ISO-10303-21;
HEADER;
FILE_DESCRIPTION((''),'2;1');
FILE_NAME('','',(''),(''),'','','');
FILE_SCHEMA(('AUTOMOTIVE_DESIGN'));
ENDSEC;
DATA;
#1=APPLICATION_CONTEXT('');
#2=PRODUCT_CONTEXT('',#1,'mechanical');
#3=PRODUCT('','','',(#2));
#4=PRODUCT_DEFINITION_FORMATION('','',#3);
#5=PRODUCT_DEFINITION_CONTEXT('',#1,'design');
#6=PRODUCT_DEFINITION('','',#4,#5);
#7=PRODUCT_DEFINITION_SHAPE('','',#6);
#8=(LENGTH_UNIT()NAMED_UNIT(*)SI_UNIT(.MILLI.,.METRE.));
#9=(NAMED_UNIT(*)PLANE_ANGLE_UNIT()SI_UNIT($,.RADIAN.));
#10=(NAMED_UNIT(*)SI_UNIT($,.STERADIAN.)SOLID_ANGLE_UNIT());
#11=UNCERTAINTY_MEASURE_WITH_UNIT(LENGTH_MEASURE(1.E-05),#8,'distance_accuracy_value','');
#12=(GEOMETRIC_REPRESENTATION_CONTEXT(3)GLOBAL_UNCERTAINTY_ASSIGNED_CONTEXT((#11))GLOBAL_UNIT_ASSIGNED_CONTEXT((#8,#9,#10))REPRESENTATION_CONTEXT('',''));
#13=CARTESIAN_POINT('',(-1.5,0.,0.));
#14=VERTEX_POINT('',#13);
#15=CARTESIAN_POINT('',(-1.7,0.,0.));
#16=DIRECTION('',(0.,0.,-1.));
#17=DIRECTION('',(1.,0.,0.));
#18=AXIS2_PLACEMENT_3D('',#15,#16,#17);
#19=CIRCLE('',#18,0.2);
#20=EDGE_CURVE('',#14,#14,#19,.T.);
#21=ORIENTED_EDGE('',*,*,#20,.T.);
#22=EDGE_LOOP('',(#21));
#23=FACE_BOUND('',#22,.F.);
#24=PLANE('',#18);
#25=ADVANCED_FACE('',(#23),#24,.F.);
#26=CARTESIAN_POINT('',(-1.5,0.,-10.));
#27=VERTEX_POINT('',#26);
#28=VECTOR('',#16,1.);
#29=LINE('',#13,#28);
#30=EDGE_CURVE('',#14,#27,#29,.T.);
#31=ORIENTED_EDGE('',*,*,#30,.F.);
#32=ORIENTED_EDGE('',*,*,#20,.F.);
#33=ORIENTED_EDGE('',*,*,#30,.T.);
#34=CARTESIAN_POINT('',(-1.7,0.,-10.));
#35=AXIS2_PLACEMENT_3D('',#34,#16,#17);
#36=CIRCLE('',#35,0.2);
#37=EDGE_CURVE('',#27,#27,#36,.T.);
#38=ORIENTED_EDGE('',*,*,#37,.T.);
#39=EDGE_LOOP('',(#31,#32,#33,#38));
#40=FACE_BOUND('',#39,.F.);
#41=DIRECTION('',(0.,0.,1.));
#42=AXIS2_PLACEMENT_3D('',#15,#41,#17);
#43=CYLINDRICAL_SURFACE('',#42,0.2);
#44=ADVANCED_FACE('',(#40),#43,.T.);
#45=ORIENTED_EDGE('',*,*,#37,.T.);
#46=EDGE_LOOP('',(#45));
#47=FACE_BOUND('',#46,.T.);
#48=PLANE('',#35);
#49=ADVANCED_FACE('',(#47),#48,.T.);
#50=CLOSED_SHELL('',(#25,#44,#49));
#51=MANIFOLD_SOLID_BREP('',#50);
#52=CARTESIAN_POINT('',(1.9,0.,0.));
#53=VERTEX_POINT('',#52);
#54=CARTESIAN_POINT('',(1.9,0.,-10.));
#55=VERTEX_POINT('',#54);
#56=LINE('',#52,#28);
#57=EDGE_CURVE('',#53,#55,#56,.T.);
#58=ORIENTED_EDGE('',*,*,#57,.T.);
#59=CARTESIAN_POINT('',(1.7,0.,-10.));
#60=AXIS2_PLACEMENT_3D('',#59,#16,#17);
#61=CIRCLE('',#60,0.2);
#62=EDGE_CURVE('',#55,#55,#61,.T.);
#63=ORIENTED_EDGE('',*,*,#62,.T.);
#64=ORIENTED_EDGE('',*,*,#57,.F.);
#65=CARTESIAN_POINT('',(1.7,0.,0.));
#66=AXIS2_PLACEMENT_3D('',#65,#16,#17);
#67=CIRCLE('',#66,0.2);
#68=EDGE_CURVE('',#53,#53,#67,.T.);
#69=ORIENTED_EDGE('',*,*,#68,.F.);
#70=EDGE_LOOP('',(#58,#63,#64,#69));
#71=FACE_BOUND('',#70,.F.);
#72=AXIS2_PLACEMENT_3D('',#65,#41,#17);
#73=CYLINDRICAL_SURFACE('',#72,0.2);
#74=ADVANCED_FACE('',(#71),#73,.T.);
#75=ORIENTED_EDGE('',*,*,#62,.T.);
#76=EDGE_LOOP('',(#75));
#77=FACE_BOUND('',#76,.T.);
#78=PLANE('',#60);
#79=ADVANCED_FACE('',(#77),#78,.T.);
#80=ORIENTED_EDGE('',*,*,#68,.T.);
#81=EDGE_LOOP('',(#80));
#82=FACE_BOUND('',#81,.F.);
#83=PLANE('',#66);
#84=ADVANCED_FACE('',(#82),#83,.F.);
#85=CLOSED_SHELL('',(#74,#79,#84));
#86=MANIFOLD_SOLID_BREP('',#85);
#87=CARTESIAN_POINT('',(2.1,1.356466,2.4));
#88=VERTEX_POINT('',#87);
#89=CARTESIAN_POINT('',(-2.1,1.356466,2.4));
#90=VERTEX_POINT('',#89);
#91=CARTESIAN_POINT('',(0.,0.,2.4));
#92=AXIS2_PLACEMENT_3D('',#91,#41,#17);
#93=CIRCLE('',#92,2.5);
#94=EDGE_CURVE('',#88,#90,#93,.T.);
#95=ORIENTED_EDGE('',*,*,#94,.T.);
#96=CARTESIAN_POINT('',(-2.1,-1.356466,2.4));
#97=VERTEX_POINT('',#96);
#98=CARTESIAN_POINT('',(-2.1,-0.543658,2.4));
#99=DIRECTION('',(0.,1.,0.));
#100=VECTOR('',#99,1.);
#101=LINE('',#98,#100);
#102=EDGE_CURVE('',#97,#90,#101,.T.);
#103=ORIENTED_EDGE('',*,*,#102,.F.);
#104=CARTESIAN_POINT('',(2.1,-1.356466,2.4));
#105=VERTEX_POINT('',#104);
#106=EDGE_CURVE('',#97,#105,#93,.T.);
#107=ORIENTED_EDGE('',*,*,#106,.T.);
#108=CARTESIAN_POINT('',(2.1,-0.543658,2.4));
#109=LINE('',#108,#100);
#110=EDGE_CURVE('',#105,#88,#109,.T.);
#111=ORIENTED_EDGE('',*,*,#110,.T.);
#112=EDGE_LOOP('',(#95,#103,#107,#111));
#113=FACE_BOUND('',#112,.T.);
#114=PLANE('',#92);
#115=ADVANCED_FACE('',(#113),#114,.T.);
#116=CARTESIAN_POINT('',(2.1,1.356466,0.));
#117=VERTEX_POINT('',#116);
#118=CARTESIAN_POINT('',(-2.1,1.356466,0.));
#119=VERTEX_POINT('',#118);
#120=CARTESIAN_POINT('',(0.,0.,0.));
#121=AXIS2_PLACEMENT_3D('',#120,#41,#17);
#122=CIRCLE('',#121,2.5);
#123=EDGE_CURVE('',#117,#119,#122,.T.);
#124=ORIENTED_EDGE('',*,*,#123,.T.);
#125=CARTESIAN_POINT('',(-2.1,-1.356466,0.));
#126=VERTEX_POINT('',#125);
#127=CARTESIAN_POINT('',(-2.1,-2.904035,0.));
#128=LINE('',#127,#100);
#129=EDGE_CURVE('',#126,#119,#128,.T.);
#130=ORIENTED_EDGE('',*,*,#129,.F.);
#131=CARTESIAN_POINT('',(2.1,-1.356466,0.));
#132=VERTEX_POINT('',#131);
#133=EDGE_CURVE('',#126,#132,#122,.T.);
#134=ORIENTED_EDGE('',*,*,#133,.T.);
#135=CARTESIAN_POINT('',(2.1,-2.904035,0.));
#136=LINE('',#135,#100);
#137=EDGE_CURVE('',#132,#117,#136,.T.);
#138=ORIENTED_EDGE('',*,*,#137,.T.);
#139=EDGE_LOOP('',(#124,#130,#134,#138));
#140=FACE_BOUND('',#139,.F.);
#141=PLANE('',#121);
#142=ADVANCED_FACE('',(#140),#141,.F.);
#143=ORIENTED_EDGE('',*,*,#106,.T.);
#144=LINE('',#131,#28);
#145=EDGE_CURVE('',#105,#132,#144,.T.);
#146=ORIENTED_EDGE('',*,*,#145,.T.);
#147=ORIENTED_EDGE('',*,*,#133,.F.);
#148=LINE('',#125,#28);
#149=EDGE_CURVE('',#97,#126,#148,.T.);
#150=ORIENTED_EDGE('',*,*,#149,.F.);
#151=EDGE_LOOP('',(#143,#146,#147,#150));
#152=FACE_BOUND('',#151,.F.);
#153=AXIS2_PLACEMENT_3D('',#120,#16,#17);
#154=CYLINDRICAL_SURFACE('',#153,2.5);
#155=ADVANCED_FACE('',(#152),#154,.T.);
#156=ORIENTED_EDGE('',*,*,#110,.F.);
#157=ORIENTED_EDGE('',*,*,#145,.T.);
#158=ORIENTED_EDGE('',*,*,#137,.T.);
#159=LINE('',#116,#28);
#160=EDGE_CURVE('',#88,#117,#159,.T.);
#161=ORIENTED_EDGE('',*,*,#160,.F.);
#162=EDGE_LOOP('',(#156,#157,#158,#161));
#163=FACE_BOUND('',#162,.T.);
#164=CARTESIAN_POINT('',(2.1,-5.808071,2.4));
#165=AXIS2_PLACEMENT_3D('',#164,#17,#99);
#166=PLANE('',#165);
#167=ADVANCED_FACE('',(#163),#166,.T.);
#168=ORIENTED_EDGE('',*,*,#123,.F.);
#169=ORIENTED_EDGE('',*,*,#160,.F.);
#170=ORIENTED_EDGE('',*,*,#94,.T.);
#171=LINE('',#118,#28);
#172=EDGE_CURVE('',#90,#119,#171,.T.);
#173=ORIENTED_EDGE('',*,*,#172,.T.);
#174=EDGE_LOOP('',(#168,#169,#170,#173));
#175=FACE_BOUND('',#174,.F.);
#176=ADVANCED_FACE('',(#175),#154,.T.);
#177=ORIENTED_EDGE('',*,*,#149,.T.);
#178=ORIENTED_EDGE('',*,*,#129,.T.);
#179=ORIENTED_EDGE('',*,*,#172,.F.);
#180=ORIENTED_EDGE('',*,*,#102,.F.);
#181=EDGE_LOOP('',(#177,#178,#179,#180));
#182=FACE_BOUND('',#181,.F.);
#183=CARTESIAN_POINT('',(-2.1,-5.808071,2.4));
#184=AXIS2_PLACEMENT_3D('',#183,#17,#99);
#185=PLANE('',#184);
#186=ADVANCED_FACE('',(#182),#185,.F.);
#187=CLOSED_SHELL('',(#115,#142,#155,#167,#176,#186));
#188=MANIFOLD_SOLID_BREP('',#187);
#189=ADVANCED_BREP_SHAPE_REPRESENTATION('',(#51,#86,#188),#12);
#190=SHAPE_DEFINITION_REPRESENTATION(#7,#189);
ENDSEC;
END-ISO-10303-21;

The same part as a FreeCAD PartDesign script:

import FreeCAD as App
import Part
import Sketcher

V = App.Vector

doc = App.newDocument("Part")
body = doc.addObject("PartDesign::Body", "Body")

sketch1 = body.newObject("Sketcher::SketchObject", "Sketch")
sketch1.AttachmentSupport = (doc.getObject("XY_Plane"), [""])
sketch1.MapMode = "FlatFace"
sketch1.addGeometry(Part.Circle(V(0, 0, 0), V(0, 0, 1), 2.5), False)
sketch1.addConstraint(Sketcher.Constraint("Coincident", 0, 3, -1, 1))
sketch1.addConstraint(Sketcher.Constraint("Diameter", 0, 5.0))
pad1 = body.newObject("PartDesign::Pad", "Pad")
pad1.Profile = sketch1
pad1.Length = 2.4
body2 = doc.addObject("PartDesign::Body", "Body001")
body2.AllowCompound = True

sketch2 = body2.newObject("Sketcher::SketchObject", "Sketch001")
sketch2.AttachmentSupport = (doc.getObject("XY_Plane001"), [""])
sketch2.MapMode = "FlatFace"
sketch2.addGeometry(Part.Circle(V(-1.7, 0, 0), V(0, 0, 1), 0.2), False)
sketch2.addGeometry(Part.Circle(V(1.7, 0, 0), V(0, 0, 1), 0.2), False)
sketch2.addConstraint(Sketcher.Constraint("Equal", 0, 1))
sketch2.addConstraint(Sketcher.Constraint("Symmetric", 0, 3, 1, 3, -1, 1))
sketch2.addConstraint(Sketcher.Constraint("PointOnObject", 0, 3, -1))
sketch2.addConstraint(Sketcher.Constraint("Diameter", 0, 0.4))
sketch2.addConstraint(Sketcher.Constraint("DistanceX", 0, 3, -1, 1, 1.7))
pad2 = body2.newObject("PartDesign::Pad", "Pad001")
pad2.Profile = sketch2
pad2.Length = 10
pad2.Reversed = True
body3 = doc.addObject("PartDesign::Body", "Body002")

sketch3 = body3.newObject("Sketcher::SketchObject", "Sketch002")
sketch3.AttachmentSupport = (doc.getObject("XY_Plane002"), [""])
sketch3.MapMode = "FlatFace"
sketch3.AttachmentOffset = App.Placement(V(0, 0, 2.4), App.Rotation())
sketch3.addGeometry(Part.LineSegment(V(-2.1, 4.7, 0), V(-2.1, -5.8, 0)), False)
sketch3.addGeometry(Part.LineSegment(V(-2.1, -5.8, 0), V(2.1, -5.8, 0)), False)
sketch3.addGeometry(Part.LineSegment(V(2.1, -5.8, 0), V(2.1, 4.7, 0)), False)
sketch3.addGeometry(Part.LineSegment(V(2.1, 4.7, 0), V(-2.1, 4.7, 0)), False)
sketch3.addConstraint(Sketcher.Constraint("Coincident", 0, 2, 1, 1))
sketch3.addConstraint(Sketcher.Constraint("Coincident", 1, 2, 2, 1))
sketch3.addConstraint(Sketcher.Constraint("Coincident", 2, 2, 3, 1))
sketch3.addConstraint(Sketcher.Constraint("Coincident", 3, 2, 0, 1))
sketch3.addConstraint(Sketcher.Constraint("Vertical", 0))
sketch3.addConstraint(Sketcher.Constraint("Horizontal", 1))
sketch3.addConstraint(Sketcher.Constraint("Vertical", 2))
sketch3.addConstraint(Sketcher.Constraint("Horizontal", 3))
sketch3.addConstraint(Sketcher.Constraint("DistanceX", 1, 1, 1, 2, 4.2))
sketch3.addConstraint(Sketcher.Constraint("DistanceX", 0, 2, -1, 1, 2.1))
sketch3.addConstraint(Sketcher.Constraint("DistanceY", 0, 2, 0, 1, 10.528826))
sketch3.addConstraint(Sketcher.Constraint("DistanceY", 0, 2, -1, 1, 5.808071))
pad3 = body3.newObject("PartDesign::Pad", "Pad002")
pad3.Profile = sketch3
pad3.Length = 25
pad3.Reversed = True
doc.recompute()

body4 = doc.addObject("PartDesign::Body", "Body003")
body4.BaseFeature = body3
boolean = body.newObject("PartDesign::Boolean", "Boolean")
boolean.Type = "Common"
boolean.addObjects([body4])
doc.recompute()
body2.AllowCompound = True
doc.recompute()

boolean2 = body2.newObject("PartDesign::Boolean", "Boolean001")
boolean2.Type = "Common"
boolean2.addObjects([body3])

doc.recompute()
